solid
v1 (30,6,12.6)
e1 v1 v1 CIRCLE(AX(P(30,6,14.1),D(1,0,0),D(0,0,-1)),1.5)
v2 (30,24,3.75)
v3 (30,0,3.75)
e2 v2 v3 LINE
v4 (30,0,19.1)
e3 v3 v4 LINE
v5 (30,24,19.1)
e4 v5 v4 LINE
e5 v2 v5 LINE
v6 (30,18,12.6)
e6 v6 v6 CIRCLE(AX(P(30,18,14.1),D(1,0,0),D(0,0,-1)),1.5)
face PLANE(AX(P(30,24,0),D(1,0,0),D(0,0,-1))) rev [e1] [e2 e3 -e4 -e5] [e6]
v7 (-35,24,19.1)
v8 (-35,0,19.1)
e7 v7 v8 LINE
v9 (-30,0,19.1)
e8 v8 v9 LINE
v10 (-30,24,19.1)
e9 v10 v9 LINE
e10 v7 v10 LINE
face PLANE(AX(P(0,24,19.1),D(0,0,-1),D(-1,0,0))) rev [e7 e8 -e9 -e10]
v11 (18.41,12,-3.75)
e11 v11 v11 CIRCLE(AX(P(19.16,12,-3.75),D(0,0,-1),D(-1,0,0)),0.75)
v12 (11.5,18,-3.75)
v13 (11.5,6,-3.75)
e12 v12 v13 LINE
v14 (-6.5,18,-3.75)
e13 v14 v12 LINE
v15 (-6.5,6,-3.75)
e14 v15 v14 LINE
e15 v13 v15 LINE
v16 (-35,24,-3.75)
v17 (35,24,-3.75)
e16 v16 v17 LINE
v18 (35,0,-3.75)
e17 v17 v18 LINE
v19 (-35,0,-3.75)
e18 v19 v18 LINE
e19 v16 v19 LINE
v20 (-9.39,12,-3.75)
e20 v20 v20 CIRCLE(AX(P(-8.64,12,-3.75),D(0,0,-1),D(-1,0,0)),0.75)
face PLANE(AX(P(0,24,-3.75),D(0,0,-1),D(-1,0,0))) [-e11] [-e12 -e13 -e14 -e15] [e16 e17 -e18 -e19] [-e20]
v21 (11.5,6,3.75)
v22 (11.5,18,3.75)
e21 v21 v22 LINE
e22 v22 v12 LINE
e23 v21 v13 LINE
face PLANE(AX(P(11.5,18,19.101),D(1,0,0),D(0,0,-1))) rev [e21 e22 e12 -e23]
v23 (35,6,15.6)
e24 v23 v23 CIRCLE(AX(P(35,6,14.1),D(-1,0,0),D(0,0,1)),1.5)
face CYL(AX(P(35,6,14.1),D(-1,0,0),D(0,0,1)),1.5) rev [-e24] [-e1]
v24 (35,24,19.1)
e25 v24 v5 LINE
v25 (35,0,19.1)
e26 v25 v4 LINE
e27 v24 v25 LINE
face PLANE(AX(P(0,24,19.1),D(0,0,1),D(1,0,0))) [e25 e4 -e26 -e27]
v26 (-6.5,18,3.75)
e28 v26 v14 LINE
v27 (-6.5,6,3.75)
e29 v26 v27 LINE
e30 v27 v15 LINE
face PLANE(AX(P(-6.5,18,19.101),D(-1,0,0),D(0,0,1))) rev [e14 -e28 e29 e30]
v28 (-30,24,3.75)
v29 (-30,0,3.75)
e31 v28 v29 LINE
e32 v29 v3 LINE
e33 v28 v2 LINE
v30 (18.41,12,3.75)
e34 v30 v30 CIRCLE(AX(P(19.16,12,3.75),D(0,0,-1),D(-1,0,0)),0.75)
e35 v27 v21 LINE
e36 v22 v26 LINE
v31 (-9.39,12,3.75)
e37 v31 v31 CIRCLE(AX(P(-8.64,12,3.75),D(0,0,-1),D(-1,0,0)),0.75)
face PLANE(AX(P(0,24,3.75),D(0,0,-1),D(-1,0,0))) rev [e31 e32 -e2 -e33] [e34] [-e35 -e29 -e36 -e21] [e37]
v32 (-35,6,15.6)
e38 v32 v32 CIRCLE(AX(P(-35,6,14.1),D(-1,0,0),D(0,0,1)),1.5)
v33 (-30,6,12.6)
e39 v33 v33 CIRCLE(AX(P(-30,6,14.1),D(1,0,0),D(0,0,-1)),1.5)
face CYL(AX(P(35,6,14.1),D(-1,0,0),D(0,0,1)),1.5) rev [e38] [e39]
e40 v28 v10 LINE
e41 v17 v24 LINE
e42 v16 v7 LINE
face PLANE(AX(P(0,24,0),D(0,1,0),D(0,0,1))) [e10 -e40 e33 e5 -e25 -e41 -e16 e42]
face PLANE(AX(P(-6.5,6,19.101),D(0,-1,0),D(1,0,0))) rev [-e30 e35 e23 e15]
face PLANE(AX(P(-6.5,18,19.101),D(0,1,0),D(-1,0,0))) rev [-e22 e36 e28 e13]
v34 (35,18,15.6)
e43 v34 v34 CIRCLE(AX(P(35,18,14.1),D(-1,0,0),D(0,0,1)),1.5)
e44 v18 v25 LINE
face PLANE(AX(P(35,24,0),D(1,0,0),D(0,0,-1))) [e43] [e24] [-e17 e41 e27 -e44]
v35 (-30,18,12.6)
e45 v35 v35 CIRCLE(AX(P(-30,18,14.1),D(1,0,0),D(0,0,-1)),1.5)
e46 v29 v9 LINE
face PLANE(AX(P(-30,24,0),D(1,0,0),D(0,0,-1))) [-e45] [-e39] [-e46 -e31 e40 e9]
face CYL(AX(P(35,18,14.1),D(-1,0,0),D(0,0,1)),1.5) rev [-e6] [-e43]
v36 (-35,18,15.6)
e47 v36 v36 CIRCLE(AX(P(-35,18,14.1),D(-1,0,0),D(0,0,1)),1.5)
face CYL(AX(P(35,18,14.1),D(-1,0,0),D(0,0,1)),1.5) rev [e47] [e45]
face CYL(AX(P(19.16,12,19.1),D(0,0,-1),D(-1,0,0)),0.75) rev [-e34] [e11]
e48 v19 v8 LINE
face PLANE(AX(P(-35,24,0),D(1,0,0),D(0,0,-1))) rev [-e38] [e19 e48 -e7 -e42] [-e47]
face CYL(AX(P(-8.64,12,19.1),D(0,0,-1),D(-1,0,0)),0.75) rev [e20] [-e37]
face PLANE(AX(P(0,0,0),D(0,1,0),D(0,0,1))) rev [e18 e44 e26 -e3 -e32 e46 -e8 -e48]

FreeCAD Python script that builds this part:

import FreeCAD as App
import Part
import Sketcher
from FreeCAD import Vector
Q = App.Units.Quantity

doc = App.newDocument("Part")
body = doc.addObject("PartDesign::Body", "Body")

sketch1 = doc.addObject("Sketcher::SketchObject", "Sketch")
body.addObject(sketch1)
sketch1.AttachmentSupport = (doc.XZ_Plane, [""])
sketch1.MapMode = "FlatFace"
sketch1.addGeometry([
    Part.LineSegment(Vector(-35, 19.1, 0), Vector(-30, 19.1, 0)),
    Part.LineSegment(Vector(-30, 19.1, 0), Vector(-30, 3.75, 0)),
    Part.LineSegment(Vector(-30, 3.75, 0), Vector(30, 3.75, 0)),
    Part.LineSegment(Vector(30, 3.75, 0), Vector(30, 19.1, 0)),
    Part.LineSegment(Vector(30, 19.1, 0), Vector(35, 19.1, 0)),
    Part.LineSegment(Vector(35, 19.1, 0), Vector(35, -3.75, 0)),
    Part.LineSegment(Vector(35, -3.75, 0), Vector(-35, -3.75, 0)),
    Part.LineSegment(Vector(-35, -3.75, 0), Vector(-35, 19.1, 0)),
], False)
sketch1.addConstraint([
    Sketcher.Constraint("Coincident", 0, 2, 1, 1),
    Sketcher.Constraint("Coincident", 1, 2, 2, 1),
    Sketcher.Constraint("Coincident", 2, 2, 3, 1),
    Sketcher.Constraint("Coincident", 3, 2, 4, 1),
    Sketcher.Constraint("Coincident", 4, 2, 5, 1),
    Sketcher.Constraint("Coincident", 5, 2, 6, 1),
    Sketcher.Constraint("Coincident", 6, 2, 7, 1),
    Sketcher.Constraint("Coincident", 7, 2, 0, 1),
    Sketcher.Constraint("Horizontal", 0),
    Sketcher.Constraint("Vertical", 1),
    Sketcher.Constraint("Horizontal", 2),
    Sketcher.Constraint("Vertical", 3),
    Sketcher.Constraint("Horizontal", 4),
    Sketcher.Constraint("Vertical", 5),
    Sketcher.Constraint("Horizontal", 6),
    Sketcher.Constraint("Vertical", 7),
    Sketcher.Constraint("Symmetric", 0, 2, 3, 2, -2),
    Sketcher.Constraint("Equal", 0, 4),
    Sketcher.Constraint("DistanceX", 0, 1, 0, 2, Q("5 mm")),
    Sketcher.Constraint("DistanceX", 2, 1, 2, 2, Q("60 mm")),
    Sketcher.Constraint("DistanceY", 1, 2, 1, 1, Q("15.35 mm")),
    Sketcher.Constraint("DistanceY", 5, 2, 5, 1, Q("22.85 mm")),
    Sketcher.Constraint("DistanceY", -1, 1, 0, 2, Q("19.1 mm")),
])
pad1 = doc.addObject("PartDesign::Pad", "Pad")
body.addObject(pad1)
pad1.Profile = sketch1
pad1.Length = 24
pad1.Reversed = True

sketch2 = doc.addObject("Sketcher::SketchObject", "Sketch001")
body.addObject(sketch2)
sketch2.AttachmentSupport = (doc.YZ_Plane, [""])
sketch2.MapMode = "FlatFace"
sketch2.AttachmentOffset = App.Placement(Vector(0, 0, -35), App.Rotation())
sketch2.addGeometry([
    Part.Circle(Vector(18, 14.1, 0), Vector(0, 0, 1), 1.5),
    Part.Circle(Vector(6, 14.1, 0), Vector(0, 0, 1), 1.5),
], False)
sketch2.addConstraint([
    Sketcher.Constraint("Equal", 0, 1),
    Sketcher.Constraint("Horizontal", 0, 3, 1, 3),
    Sketcher.Constraint("Diameter", 0, Q("3 mm")),
    Sketcher.Constraint("DistanceX", -1, 1, 0, 3, Q("18 mm")),
    Sketcher.Constraint("DistanceX", -1, 1, 1, 3, Q("6 mm")),
    Sketcher.Constraint("DistanceY", -1, 1, 0, 3, Q("14.1 mm")),
])
pocket1 = doc.addObject("PartDesign::Pocket", "Pocket")
body.addObject(pocket1)
pocket1.Profile = sketch2
pocket1.Type = "ThroughAll"
pocket1.Reversed = True

sketch3 = doc.addObject("Sketcher::SketchObject", "Sketch002")
body.addObject(sketch3)
sketch3.AttachmentSupport = (doc.XY_Plane, [""])
sketch3.MapMode = "FlatFace"
sketch3.AttachmentOffset = App.Placement(Vector(0, 0, -3.75), App.Rotation())
sketch3.addGeometry([
    Part.LineSegment(Vector(11.5, 18, 0), Vector(11.5, 6, 0)),
    Part.LineSegment(Vector(11.5, 6, 0), Vector(-6.5, 6, 0)),
    Part.LineSegment(Vector(-6.5, 6, 0), Vector(-6.5, 18, 0)),
    Part.LineSegment(Vector(-6.5, 18, 0), Vector(11.5, 18, 0)),
], False)
sketch3.addConstraint([
    Sketcher.Constraint("Coincident", 0, 2, 1, 1),
    Sketcher.Constraint("Coincident", 1, 2, 2, 1),
    Sketcher.Constraint("Coincident", 2, 2, 3, 1),
    Sketcher.Constraint("Coincident", 3, 2, 0, 1),
    Sketcher.Constraint("Vertical", 0),
    Sketcher.Constraint("Horizontal", 1),
    Sketcher.Constraint("Vertical", 2),
    Sketcher.Constraint("Horizontal", 3),
    Sketcher.Constraint("DistanceX", 1, 2, 1, 1, Q("18 mm")),
    Sketcher.Constraint("DistanceY", 0, 2, 0, 1, Q("12 mm")),
    Sketcher.Constraint("DistanceY", -1, 1, 0, 2, Q("6 mm")),
    Sketcher.Constraint("DistanceX", -1, 1, 0, 2, Q("11.5 mm")),
])
pocket2 = doc.addObject("PartDesign::Pocket", "Pocket001")
body.addObject(pocket2)
pocket2.Profile = sketch3
pocket2.Type = "UpToFirst"
pocket2.Reversed = True

sketch4 = doc.addObject("Sketcher::SketchObject", "Sketch003")
body.addObject(sketch4)
sketch4.AttachmentSupport = (doc.XY_Plane, [""])
sketch4.MapMode = "FlatFace"
sketch4.AttachmentOffset = App.Placement(Vector(0, 0, -3.75), App.Rotation())
sketch4.addGeometry([
    Part.Circle(Vector(19.16, 12, 0), Vector(0, 0, 1), 0.75),
    Part.Circle(Vector(-8.64, 12, 0), Vector(0, 0, 1), 0.75),
], False)
sketch4.addConstraint([
    Sketcher.Constraint("Equal", 0, 1),
    Sketcher.Constraint("Horizontal", 0, 3, 1, 3),
    Sketcher.Constraint("Diameter", 0, Q("1.5 mm")),
    Sketcher.Constraint("DistanceY", -1, 1, 0, 3, Q("12 mm")),
    Sketcher.Constraint("DistanceX", 1, 3, 0, 3, Q("27.8 mm")),
    Sketcher.Constraint("DistanceX", -1, 1, 0, 3, Q("19.16 mm")),
])
pocket3 = doc.addObject("PartDesign::Pocket", "Pocket002")
body.addObject(pocket3)
pocket3.Profile = sketch4
pocket3.Type = "ThroughAll"
pocket3.Reversed = True

doc.recompute()
